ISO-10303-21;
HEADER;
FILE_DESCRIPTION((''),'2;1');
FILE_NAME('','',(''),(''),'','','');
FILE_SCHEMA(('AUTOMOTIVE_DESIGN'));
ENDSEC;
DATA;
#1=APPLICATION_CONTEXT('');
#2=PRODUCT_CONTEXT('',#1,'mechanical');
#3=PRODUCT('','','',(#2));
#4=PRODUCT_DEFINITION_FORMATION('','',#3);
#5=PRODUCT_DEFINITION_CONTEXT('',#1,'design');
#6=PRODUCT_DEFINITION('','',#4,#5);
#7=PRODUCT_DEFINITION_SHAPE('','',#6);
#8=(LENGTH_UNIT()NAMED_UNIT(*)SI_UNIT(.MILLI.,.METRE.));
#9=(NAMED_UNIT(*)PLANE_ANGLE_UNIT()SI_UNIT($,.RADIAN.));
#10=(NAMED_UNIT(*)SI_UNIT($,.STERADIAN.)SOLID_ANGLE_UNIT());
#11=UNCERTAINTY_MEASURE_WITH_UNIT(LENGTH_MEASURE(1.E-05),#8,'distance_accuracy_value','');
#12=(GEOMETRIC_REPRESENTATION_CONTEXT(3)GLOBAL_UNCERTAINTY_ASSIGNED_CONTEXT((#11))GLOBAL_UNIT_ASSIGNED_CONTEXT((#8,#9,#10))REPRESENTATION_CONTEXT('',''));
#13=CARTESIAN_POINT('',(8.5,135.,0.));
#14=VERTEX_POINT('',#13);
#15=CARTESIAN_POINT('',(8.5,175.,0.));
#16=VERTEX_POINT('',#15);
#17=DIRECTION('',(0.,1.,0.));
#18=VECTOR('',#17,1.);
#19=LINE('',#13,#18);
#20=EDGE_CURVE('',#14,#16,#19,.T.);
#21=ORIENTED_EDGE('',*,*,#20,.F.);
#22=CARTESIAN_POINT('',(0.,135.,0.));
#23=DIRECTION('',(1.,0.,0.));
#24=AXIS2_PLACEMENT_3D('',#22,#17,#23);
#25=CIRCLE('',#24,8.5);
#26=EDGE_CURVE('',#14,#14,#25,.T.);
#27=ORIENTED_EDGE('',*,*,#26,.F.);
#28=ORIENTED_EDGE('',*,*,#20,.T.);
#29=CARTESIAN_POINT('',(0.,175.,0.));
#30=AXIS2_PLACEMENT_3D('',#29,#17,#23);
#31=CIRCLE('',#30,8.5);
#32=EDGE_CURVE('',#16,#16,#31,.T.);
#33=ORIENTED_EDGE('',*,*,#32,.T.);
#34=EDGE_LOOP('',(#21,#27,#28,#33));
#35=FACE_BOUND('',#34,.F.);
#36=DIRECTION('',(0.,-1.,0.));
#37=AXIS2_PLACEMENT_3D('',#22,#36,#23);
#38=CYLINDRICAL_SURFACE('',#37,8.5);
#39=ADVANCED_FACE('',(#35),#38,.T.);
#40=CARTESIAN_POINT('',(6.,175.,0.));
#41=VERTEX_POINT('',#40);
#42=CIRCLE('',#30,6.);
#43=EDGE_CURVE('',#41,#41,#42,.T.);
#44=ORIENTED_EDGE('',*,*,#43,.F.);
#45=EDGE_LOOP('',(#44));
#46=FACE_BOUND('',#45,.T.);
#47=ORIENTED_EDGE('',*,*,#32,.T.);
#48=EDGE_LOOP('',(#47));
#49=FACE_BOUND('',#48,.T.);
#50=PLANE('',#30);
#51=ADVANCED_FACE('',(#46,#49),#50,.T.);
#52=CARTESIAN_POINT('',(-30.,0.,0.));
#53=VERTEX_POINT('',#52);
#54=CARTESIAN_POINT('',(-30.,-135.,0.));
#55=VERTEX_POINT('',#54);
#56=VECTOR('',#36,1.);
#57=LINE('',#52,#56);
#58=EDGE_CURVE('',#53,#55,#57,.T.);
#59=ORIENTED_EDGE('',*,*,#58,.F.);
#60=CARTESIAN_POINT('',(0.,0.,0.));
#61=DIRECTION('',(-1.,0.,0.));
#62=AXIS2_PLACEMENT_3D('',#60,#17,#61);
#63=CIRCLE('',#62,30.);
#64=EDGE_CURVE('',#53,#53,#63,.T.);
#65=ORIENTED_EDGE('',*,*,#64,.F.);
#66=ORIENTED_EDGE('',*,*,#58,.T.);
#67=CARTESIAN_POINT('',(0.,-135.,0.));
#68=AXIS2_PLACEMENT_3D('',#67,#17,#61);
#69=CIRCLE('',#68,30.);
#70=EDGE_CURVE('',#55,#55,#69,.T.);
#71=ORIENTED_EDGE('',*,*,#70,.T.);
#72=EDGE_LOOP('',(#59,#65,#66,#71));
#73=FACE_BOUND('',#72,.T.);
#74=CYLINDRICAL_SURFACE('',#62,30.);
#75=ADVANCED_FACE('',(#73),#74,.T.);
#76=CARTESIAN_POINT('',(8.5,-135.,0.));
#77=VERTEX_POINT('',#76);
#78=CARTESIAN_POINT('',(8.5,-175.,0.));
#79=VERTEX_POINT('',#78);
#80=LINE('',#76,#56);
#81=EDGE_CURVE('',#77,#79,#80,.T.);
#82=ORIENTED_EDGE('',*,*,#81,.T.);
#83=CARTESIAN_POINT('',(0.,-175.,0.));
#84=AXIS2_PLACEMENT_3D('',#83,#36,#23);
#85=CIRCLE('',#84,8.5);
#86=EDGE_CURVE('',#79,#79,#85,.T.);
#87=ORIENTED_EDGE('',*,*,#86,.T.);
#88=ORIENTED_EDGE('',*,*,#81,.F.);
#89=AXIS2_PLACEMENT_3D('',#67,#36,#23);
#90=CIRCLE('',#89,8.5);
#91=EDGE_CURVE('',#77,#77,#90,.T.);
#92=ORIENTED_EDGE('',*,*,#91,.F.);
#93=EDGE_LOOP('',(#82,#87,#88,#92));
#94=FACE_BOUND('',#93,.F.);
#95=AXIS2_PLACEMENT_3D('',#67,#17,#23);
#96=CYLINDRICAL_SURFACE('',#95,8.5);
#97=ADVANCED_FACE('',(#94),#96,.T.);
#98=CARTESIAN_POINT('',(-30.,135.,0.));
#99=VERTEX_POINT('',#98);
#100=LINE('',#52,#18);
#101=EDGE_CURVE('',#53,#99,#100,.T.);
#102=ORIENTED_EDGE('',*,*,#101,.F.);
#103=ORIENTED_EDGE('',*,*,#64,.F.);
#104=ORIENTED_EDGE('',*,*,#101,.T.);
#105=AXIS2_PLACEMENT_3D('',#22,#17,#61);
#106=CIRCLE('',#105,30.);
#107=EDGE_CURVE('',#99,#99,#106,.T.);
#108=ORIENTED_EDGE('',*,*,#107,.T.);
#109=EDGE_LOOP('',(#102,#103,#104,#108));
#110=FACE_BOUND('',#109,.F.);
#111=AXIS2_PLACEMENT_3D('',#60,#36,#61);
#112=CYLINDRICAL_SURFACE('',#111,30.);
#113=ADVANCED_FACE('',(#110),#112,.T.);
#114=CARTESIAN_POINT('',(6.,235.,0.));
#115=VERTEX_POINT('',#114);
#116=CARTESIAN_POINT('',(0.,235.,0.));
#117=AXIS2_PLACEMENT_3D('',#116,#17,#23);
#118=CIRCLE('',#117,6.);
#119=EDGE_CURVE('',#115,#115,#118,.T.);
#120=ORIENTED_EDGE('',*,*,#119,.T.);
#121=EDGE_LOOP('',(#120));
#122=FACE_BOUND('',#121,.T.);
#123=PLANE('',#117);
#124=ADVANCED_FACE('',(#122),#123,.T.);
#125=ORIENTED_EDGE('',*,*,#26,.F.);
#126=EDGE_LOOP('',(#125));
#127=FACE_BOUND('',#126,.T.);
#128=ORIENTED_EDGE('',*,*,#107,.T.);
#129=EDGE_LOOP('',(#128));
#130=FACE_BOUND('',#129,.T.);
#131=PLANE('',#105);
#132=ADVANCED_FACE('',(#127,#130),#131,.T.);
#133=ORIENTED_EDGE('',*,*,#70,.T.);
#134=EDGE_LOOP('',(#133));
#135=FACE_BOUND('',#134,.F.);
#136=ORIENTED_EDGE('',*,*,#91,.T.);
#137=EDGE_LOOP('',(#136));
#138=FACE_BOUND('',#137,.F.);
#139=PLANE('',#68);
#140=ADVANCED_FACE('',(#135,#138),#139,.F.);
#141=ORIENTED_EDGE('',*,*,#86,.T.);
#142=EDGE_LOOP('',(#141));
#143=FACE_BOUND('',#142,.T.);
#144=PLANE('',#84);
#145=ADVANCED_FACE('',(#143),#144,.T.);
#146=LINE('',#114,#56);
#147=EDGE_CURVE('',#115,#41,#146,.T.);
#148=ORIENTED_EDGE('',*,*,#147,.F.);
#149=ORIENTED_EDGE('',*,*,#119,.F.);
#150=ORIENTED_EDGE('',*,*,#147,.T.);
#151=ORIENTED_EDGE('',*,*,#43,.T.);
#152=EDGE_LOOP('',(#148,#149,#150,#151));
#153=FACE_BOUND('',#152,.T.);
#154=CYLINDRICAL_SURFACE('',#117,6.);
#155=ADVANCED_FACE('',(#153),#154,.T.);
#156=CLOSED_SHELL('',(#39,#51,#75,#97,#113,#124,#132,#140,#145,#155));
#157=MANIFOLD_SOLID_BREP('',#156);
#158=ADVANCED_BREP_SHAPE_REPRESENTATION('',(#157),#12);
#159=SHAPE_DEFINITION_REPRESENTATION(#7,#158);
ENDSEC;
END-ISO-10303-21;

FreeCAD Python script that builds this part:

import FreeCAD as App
import Part
import Sketcher
Q = App.Units.Quantity

doc = App.newDocument("Part")
params = doc.addObject("Spreadsheet::Sheet", "Params")
for row, (alias, value) in enumerate([
    ("sketch1_diameter", "60 mm"),
    ("pad1_length", "270 mm"),
    ("sketch2_diameter", "17 mm"),
    ("pad2_length", "40 mm"),
    ("sketch3_diameter", "17 mm"),
    ("pad3_length", "100 mm"),
    ("sketch4_diameter", "12 mm"),
    ("sketch4_diameter2", "17 mm"),
    ("pocket1_length", "60 mm"),
], start=1):
    params.set(f"A{row}", alias)
    params.set(f"B{row}", "=" + value)
    params.setAlias(f"B{row}", alias)

body = doc.addObject("PartDesign::Body", "Body")

# Sketch on XZ plane
sketch1 = body.newObject("Sketcher::SketchObject", "Sketch")
sketch1.AttachmentSupport = (doc.getObject("XZ_Plane"), [""])
sketch1.MapMode = "FlatFace"
sketch1.addGeometry(Part.Circle(App.Vector(0, 0, 0), App.Vector(0, 0, 1), 30), False)
sketch1.addConstraint(Sketcher.Constraint("Coincident", 0, 3, -1, 1))
sketch1.addConstraint(Sketcher.Constraint("Diameter", 0, Q("60 mm")))
sketch1.setExpression("Constraints[1]", "Params.sketch1_diameter")
pad1 = body.newObject("PartDesign::Pad", "Pad")
pad1.Profile = sketch1
pad1.setExpression("Length", "Params.pad1_length")
pad1.Midplane = True

# Sketch on XZ plane
sketch2 = body.newObject("Sketcher::SketchObject", "Sketch001")
sketch2.AttachmentSupport = (doc.getObject("XZ_Plane"), [""])
sketch2.MapMode = "FlatFace"
sketch2.AttachmentOffset = App.Placement(App.Vector(0, 0, 135), App.Rotation())
sketch2.addGeometry(Part.Circle(App.Vector(0, 0, 0), App.Vector(0, 0, 1), 8), False)
sketch2.addConstraint(Sketcher.Constraint("Coincident", 0, 3, -1, 1))
sketch2.addConstraint(Sketcher.Constraint("Diameter", 0, Q("17 mm")))
sketch2.setExpression("Constraints[1]", "Params.sketch2_diameter")
pad2 = body.newObject("PartDesign::Pad", "Pad001")
pad2.Profile = sketch2
pad2.setExpression("Length", "Params.pad2_length")

# Sketch on XZ plane
sketch3 = body.newObject("Sketcher::SketchObject", "Sketch002")
sketch3.AttachmentSupport = (doc.getObject("XZ_Plane"), [""])
sketch3.MapMode = "FlatFace"
sketch3.AttachmentOffset = App.Placement(App.Vector(0, 0, -135), App.Rotation())
sketch3.addGeometry(Part.Circle(App.Vector(0, 0, 0), App.Vector(0, 0, 1), 8), False)
sketch3.addConstraint(Sketcher.Constraint("Coincident", 0, 3, -1, 1))
sketch3.addConstraint(Sketcher.Constraint("Diameter", 0, Q("17 mm")))
sketch3.setExpression("Constraints[1]", "Params.sketch3_diameter")
pad3 = body.newObject("PartDesign::Pad", "Pad002")
pad3.Profile = sketch3
pad3.setExpression("Length", "Params.pad3_length")
pad3.Reversed = True

# Sketch on XZ plane
sketch4 = body.newObject("Sketcher::SketchObject", "Sketch003")
sketch4.AttachmentSupport = (doc.getObject("XZ_Plane"), [""])
sketch4.MapMode = "FlatFace"
sketch4.AttachmentOffset = App.Placement(App.Vector(0, 0, -235), App.Rotation())
sketch4.addGeometry(Part.Circle(App.Vector(0, 0, 0), App.Vector(0, 0, 1), 8), False)
sketch4.addGeometry(Part.Circle(App.Vector(0, 0, 0), App.Vector(0, 0, 1), 6), False)
sketch4.addConstraint(Sketcher.Constraint("Coincident", 0, 3, -1, 1))
sketch4.addConstraint(Sketcher.Constraint("Coincident", 1, 3, -1, 1))
sketch4.addConstraint(Sketcher.Constraint("Diameter", 1, Q("12 mm")))
sketch4.addConstraint(Sketcher.Constraint("Diameter", 0, Q("17 mm")))
sketch4.setExpression("Constraints[2]", "Params.sketch4_diameter")
sketch4.setExpression("Constraints[3]", "Params.sketch4_diameter2")
pocket1 = body.newObject("PartDesign::Pocket", "Pocket")
pocket1.Profile = sketch4
pocket1.setExpression("Length", "Params.pocket1_length")
pocket1.Reversed = True

doc.recompute()
